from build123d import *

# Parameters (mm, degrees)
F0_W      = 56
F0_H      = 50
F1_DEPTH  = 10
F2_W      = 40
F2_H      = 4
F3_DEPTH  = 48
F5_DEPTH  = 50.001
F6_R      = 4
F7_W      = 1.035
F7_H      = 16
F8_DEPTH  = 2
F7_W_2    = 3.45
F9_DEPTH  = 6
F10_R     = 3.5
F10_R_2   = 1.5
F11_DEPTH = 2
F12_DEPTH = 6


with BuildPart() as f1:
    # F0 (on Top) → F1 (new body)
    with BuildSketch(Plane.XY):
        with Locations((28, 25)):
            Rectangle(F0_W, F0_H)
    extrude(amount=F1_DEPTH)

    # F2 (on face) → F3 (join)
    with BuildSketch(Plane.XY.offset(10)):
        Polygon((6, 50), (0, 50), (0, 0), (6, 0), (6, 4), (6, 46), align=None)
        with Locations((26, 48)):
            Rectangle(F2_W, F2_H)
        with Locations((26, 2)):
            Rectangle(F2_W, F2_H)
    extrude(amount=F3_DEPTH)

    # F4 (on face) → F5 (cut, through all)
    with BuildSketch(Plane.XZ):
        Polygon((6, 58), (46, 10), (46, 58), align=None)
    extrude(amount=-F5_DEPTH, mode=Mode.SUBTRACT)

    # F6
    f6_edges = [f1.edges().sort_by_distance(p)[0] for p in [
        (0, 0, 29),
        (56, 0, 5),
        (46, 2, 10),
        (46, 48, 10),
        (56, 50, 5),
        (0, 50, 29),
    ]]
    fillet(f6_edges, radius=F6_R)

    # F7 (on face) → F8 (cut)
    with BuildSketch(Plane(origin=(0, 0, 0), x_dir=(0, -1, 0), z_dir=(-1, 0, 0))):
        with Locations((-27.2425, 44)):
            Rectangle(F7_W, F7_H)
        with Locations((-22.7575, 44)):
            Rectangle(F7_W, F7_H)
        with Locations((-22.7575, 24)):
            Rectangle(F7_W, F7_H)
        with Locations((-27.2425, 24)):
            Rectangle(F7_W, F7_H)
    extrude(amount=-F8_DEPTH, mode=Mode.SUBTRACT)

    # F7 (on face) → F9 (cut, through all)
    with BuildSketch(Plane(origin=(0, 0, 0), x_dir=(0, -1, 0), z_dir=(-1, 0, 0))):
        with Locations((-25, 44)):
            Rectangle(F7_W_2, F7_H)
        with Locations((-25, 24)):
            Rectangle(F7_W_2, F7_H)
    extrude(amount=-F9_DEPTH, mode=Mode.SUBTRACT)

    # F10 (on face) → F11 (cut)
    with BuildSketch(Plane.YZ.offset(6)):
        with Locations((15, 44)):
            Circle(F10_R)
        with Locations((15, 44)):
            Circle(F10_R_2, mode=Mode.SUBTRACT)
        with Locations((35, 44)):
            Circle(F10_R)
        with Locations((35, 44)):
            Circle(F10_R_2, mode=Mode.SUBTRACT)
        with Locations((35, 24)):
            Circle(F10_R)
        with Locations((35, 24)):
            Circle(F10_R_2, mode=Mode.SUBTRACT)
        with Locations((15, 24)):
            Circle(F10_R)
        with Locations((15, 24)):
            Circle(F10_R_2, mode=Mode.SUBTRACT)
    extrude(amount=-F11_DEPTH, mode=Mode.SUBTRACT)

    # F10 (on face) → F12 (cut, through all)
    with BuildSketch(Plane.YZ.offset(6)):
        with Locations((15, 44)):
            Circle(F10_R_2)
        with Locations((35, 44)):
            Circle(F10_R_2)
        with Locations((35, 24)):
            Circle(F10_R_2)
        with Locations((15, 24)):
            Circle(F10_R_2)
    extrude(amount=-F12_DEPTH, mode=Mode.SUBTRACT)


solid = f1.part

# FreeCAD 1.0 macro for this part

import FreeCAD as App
import Part
import Sketcher
Q = App.Units.Quantity


def edges_at(feature, points):
    """Names of the edges that pass closest to the given points."""
    edges = feature.Shape.Edges
    near = lambda p: min(range(len(edges)), key=lambda i: edges[i].distToShape(Part.Vertex(*p))[0])
    return sorted({f"Edge{near(p) + 1}" for p in points})

doc = App.newDocument("Part")
body = doc.addObject("PartDesign::Body", "Body")

# Sketch on XY plane
sketch1 = body.newObject("Sketcher::SketchObject", "Sketch")
sketch1.AttachmentSupport = (doc.getObject("XY_Plane"), [""])
sketch1.MapMode = "FlatFace"
sketch1.addGeometry([
    Part.LineSegment(App.Vector(0, 50, 0), App.Vector(0, 0, 0)),
    Part.LineSegment(App.Vector(0, 0, 0), App.Vector(56, 0, 0)),
    Part.LineSegment(App.Vector(56, 0, 0), App.Vector(56, 50, 0)),
    Part.LineSegment(App.Vector(56, 50, 0), App.Vector(0, 50, 0)),
], False)
sketch1.addConstraint([
    Sketcher.Constraint("Coincident", 0, 2, 1, 1),
    Sketcher.Constraint("Coincident", 1, 2, 2, 1),
    Sketcher.Constraint("Coincident", 2, 2, 3, 1),
    Sketcher.Constraint("Coincident", 3, 2, 0, 1),
    Sketcher.Constraint("Vertical", 0),
    Sketcher.Constraint("Horizontal", 1),
    Sketcher.Constraint("Vertical", 2),
    Sketcher.Constraint("Horizontal", 3),
    Sketcher.Constraint("Coincident", 0, 2, -1, 1),
    Sketcher.Constraint("DistanceX", 1, 1, 1, 2, Q("56 mm")),
    Sketcher.Constraint("DistanceY", 0, 2, 0, 1, Q("50 mm")),
])
pad1 = body.newObject("PartDesign::Pad", "Pad")
pad1.Profile = sketch1
pad1.Length = 10

# Sketch on XY plane
sketch2 = body.newObject("Sketcher::SketchObject", "Sketch001")
sketch2.AttachmentSupport = (doc.getObject("XY_Plane"), [""])
sketch2.MapMode = "FlatFace"
sketch2.AttachmentOffset = App.Placement(App.Vector(0, 0, 10), App.Rotation())
sketch2.addGeometry([
    Part.LineSegment(App.Vector(0, 50, 0), App.Vector(0, 0, 0)),  # 0
    Part.LineSegment(App.Vector(0, 0, 0), App.Vector(46, 0, 0)),  # 1
    Part.LineSegment(App.Vector(46, 0, 0), App.Vector(46, 4, 0)),  # 2
    Part.LineSegment(App.Vector(46, 4, 0), App.Vector(6, 4, 0)),  # 3
    Part.LineSegment(App.Vector(6, 4, 0), App.Vector(6, 46, 0)),  # 4
    Part.LineSegment(App.Vector(6, 46, 0), App.Vector(46, 46, 0)),  # 5
    Part.LineSegment(App.Vector(46, 46, 0), App.Vector(46, 50, 0)),  # 6
    Part.LineSegment(App.Vector(46, 50, 0), App.Vector(0, 50, 0)),  # 7
], False)
sketch2.addConstraint([
    Sketcher.Constraint("Coincident", 0, 2, 1, 1),
    Sketcher.Constraint("Coincident", 1, 2, 2, 1),
    Sketcher.Constraint("Coincident", 2, 2, 3, 1),
    Sketcher.Constraint("Coincident", 3, 2, 4, 1),
    Sketcher.Constraint("Coincident", 4, 2, 5, 1),
    Sketcher.Constraint("Coincident", 5, 2, 6, 1),
    Sketcher.Constraint("Coincident", 6, 2, 7, 1),
    Sketcher.Constraint("Coincident", 7, 2, 0, 1),
    Sketcher.Constraint("Vertical", 0),
    Sketcher.Constraint("Horizontal", 1),
    Sketcher.Constraint("Vertical", 2),
    Sketcher.Constraint("Horizontal", 3),
    Sketcher.Constraint("Vertical", 4),
    Sketcher.Constraint("Horizontal", 5),
    Sketcher.Constraint("Vertical", 6),
    Sketcher.Constraint("Horizontal", 7),
    Sketcher.Constraint("Coincident", 0, 2, -1, 1),
    Sketcher.Constraint("Vertical", 2, 2, 5, 2),
    Sketcher.Constraint("Equal", 2, 6),
    Sketcher.Constraint("DistanceX", 1, 1, 1, 2, Q("46 mm")),
    Sketcher.Constraint("DistanceX", 3, 2, 3, 1, Q("40 mm")),
    Sketcher.Constraint("DistanceY", 0, 2, 0, 1, Q("50 mm")),
    Sketcher.Constraint("DistanceY", 2, 1, 2, 2, Q("4 mm")),
])
pad2 = body.newObject("PartDesign::Pad", "Pad001")
pad2.Profile = sketch2
pad2.Length = 48

# Sketch on XZ plane
sketch3 = body.newObject("Sketcher::SketchObject", "Sketch002")
sketch3.AttachmentSupport = (doc.getObject("XZ_Plane"), [""])
sketch3.MapMode = "FlatFace"
sketch3.addGeometry([
    Part.LineSegment(App.Vector(6, 58, 0), App.Vector(46, 10, 0)),
    Part.LineSegment(App.Vector(46, 10, 0), App.Vector(46, 58, 0)),
    Part.LineSegment(App.Vector(46, 58, 0), App.Vector(6, 58, 0)),
], False)
sketch3.addConstraint([
    Sketcher.Constraint("Coincident", 0, 2, 1, 1),
    Sketcher.Constraint("Coincident", 1, 2, 2, 1),
    Sketcher.Constraint("Coincident", 2, 2, 0, 1),
    Sketcher.Constraint("Vertical", 1),
    Sketcher.Constraint("Horizontal", 2),
    Sketcher.Constraint("DistanceX", 2, 2, 2, 1, Q("40 mm")),
    Sketcher.Constraint("DistanceY", 1, 1, 1, 2, Q("48 mm")),
    Sketcher.Constraint("DistanceX", -1, 1, 0, 2, Q("46 mm")),
    Sketcher.Constraint("DistanceY", -1, 1, 0, 2, Q("10 mm")),
])
pocket1 = body.newObject("PartDesign::Pocket", "Pocket")
pocket1.Profile = sketch3
pocket1.Type = "ThroughAll"
doc.recompute()

fillet = body.newObject("PartDesign::Fillet", "Fillet")
fillet.Base = (pocket1, edges_at(pocket1, [
    (0, 0, 29),
    (56, 0, 5),
    (46, 2, 10),
    (46, 48, 10),
    (56, 50, 5),
    (0, 50, 29),
]))
fillet.Radius = 4

# Sketch on YZ plane
sketch4 = body.newObject("Sketcher::SketchObject", "Sketch003")
sketch4.AttachmentSupport = (doc.getObject("YZ_Plane"), [""])
sketch4.MapMode = "FlatFace"
sketch4.addGeometry([
    Part.LineSegment(App.Vector(27.8, 52, 0), App.Vector(27.8, 36, 0)),  # 0
    Part.LineSegment(App.Vector(27.8, 36, 0), App.Vector(26.7, 36, 0)),  # 1
    Part.LineSegment(App.Vector(26.7, 36, 0), App.Vector(26.7, 52, 0)),  # 2
    Part.LineSegment(App.Vector(26.7, 52, 0), App.Vector(27.8, 52, 0)),  # 3
    Part.LineSegment(App.Vector(23.3, 52, 0), App.Vector(23.3, 36, 0)),  # 4
    Part.LineSegment(App.Vector(23.3, 36, 0), App.Vector(22.2, 36, 0)),  # 5
    Part.LineSegment(App.Vector(22.2, 36, 0), App.Vector(22.2, 52, 0)),  # 6
    Part.LineSegment(App.Vector(22.2, 52, 0), App.Vector(23.3, 52, 0)),  # 7
    Part.LineSegment(App.Vector(23.3, 32, 0), App.Vector(23.3, 16, 0)),  # 8
    Part.LineSegment(App.Vector(23.3, 16, 0), App.Vector(22.2, 16, 0)),  # 9
    Part.LineSegment(App.Vector(22.2, 16, 0), App.Vector(22.2, 32, 0)),  # 10
    Part.LineSegment(App.Vector(22.2, 32, 0), App.Vector(23.3, 32, 0)),  # 11
    Part.LineSegment(App.Vector(27.8, 32, 0), App.Vector(27.8, 16, 0)),  # 12
    Part.LineSegment(App.Vector(27.8, 16, 0), App.Vector(26.7, 16, 0)),  # 13
    Part.LineSegment(App.Vector(26.7, 16, 0), App.Vector(26.7, 32, 0)),  # 14
    Part.LineSegment(App.Vector(26.7, 32, 0), App.Vector(27.8, 32, 0)),  # 15
], False)
sketch4.addConstraint([
    Sketcher.Constraint("Coincident", 0, 2, 1, 1),
    Sketcher.Constraint("Coincident", 1, 2, 2, 1),
    Sketcher.Constraint("Coincident", 2, 2, 3, 1),
    Sketcher.Constraint("Coincident", 3, 2, 0, 1),
    Sketcher.Constraint("Coincident", 4, 2, 5, 1),
    Sketcher.Constraint("Coincident", 5, 2, 6, 1),
    Sketcher.Constraint("Coincident", 6, 2, 7, 1),
    Sketcher.Constraint("Coincident", 7, 2, 4, 1),
    Sketcher.Constraint("Coincident", 8, 2, 9, 1),
    Sketcher.Constraint("Coincident", 9, 2, 10, 1),
    Sketcher.Constraint("Coincident", 10, 2, 11, 1),
    Sketcher.Constraint("Coincident", 11, 2, 8, 1),
    Sketcher.Constraint("Coincident", 12, 2, 13, 1),
    Sketcher.Constraint("Coincident", 13, 2, 14, 1),
    Sketcher.Constraint("Coincident", 14, 2, 15, 1),
    Sketcher.Constraint("Coincident", 15, 2, 12, 1),
    Sketcher.Constraint("Vertical", 0),
    Sketcher.Constraint("Horizontal", 1),
    Sketcher.Constraint("Vertical", 2),
    Sketcher.Constraint("Horizontal", 3),
    Sketcher.Constraint("Vertical", 4),
    Sketcher.Constraint("Horizontal", 5),
    Sketcher.Constraint("Vertical", 6),
    Sketcher.Constraint("Horizontal", 7),
    Sketcher.Constraint("Vertical", 8),
    Sketcher.Constraint("Horizontal", 9),
    Sketcher.Constraint("Vertical", 10),
    Sketcher.Constraint("Horizontal", 11),
    Sketcher.Constraint("Vertical", 12),
    Sketcher.Constraint("Horizontal", 13),
    Sketcher.Constraint("Vertical", 14),
    Sketcher.Constraint("Horizontal", 15),
    Sketcher.Constraint("Horizontal", 1, 2, 4, 2),
    Sketcher.Constraint("Horizontal", 3, 2, 6, 2),
    Sketcher.Constraint("Horizontal", 9, 2, 12, 2),
    Sketcher.Constraint("Horizontal", 11, 2, 14, 2),
    Sketcher.Constraint("Vertical", 7, 2, 8, 2),
    Sketcher.Constraint("Vertical", 6, 2, 9, 2),
    Sketcher.Constraint("Vertical", 3, 2, 12, 2),
    Sketcher.Constraint("Vertical", 2, 2, 13, 2),
    Sketcher.Constraint("Equal", 3, 5),
    Sketcher.Constraint("Equal", 6, 8),
    Sketcher.Constraint("DistanceY", 0, 2, 0, 1, Q("16 mm")),
    Sketcher.Constraint("DistanceY", -1, 1, 0, 2, Q("36 mm")),
    Sketcher.Constraint("DistanceY", -1, 1, 8, 2, Q("16 mm")),
    Sketcher.Constraint("DistanceX", 1, 2, 1, 1, Q("1.035 mm")),
    Sketcher.Constraint("DistanceX", -1, 1, 0, 2, Q("27.76 mm")),
    Sketcher.Constraint("DistanceX", -1, 1, 5, 2, Q("22.24 mm")),
])
pocket2 = body.newObject("PartDesign::Pocket", "Pocket001")
pocket2.Profile = sketch4
pocket2.Length = 2
pocket2.Reversed = True

# Sketch on YZ plane
sketch5 = body.newObject("Sketcher::SketchObject", "Sketch004")
sketch5.AttachmentSupport = (doc.getObject("YZ_Plane"), [""])
sketch5.MapMode = "FlatFace"
sketch5.addGeometry([
    Part.LineSegment(App.Vector(26.7, 52, 0), App.Vector(26.7, 36, 0)),  # 0
    Part.LineSegment(App.Vector(26.7, 36, 0), App.Vector(23.3, 36, 0)),  # 1
    Part.LineSegment(App.Vector(23.3, 36, 0), App.Vector(23.3, 52, 0)),  # 2
    Part.LineSegment(App.Vector(23.3, 52, 0), App.Vector(26.7, 52, 0)),  # 3
    Part.LineSegment(App.Vector(26.7, 32, 0), App.Vector(26.7, 16, 0)),  # 4
    Part.LineSegment(App.Vector(26.7, 16, 0), App.Vector(23.3, 16, 0)),  # 5
    Part.LineSegment(App.Vector(23.3, 16, 0), App.Vector(23.3, 32, 0)),  # 6
    Part.LineSegment(App.Vector(23.3, 32, 0), App.Vector(26.7, 32, 0)),  # 7
], False)
sketch5.addConstraint([
    Sketcher.Constraint("Coincident", 0, 2, 1, 1),
    Sketcher.Constraint("Coincident", 1, 2, 2, 1),
    Sketcher.Constraint("Coincident", 2, 2, 3, 1),
    Sketcher.Constraint("Coincident", 3, 2, 0, 1),
    Sketcher.Constraint("Coincident", 4, 2, 5, 1),
    Sketcher.Constraint("Coincident", 5, 2, 6, 1),
    Sketcher.Constraint("Coincident", 6, 2, 7, 1),
    Sketcher.Constraint("Coincident", 7, 2, 4, 1),
    Sketcher.Constraint("Vertical", 0),
    Sketcher.Constraint("Horizontal", 1),
    Sketcher.Constraint("Vertical", 2),
    Sketcher.Constraint("Horizontal", 3),
    Sketcher.Constraint("Vertical", 4),
    Sketcher.Constraint("Horizontal", 5),
    Sketcher.Constraint("Vertical", 6),
    Sketcher.Constraint("Horizontal", 7),
    Sketcher.Constraint("Vertical", 3, 2, 4, 2),
    Sketcher.Constraint("Vertical", 2, 2, 5, 2),
    Sketcher.Constraint("Equal", 2, 4),
    Sketcher.Constraint("DistanceY", 0, 2, 0, 1, Q("16 mm")),
    Sketcher.Constraint("DistanceY", -1, 1, 0, 2, Q("36 mm")),
    Sketcher.Constraint("DistanceY", -1, 1, 4, 2, Q("16 mm")),
    Sketcher.Constraint("DistanceX", 1, 2, 1, 1, Q("3.45 mm")),
    Sketcher.Constraint("DistanceX", -1, 1, 0, 2, Q("26.725 mm")),
])
pocket3 = body.newObject("PartDesign::Pocket", "Pocket002")
pocket3.Profile = sketch5
pocket3.Type = "ThroughAll"
pocket3.Reversed = True

# Sketch on YZ plane
sketch6 = body.newObject("Sketcher::SketchObject", "Sketch005")
sketch6.AttachmentSupport = (doc.getObject("YZ_Plane"), [""])
sketch6.MapMode = "FlatFace"
sketch6.AttachmentOffset = App.Placement(App.Vector(0, 0, 6), App.Rotation())
sketch6.addGeometry([
    Part.Circle(App.Vector(15, 44, 0), App.Vector(0, 0, 1), 3.5),  # 0
    Part.Circle(App.Vector(15, 44, 0), App.Vector(0, 0, 1), 1.5),  # 1
    Part.Circle(App.Vector(35, 44, 0), App.Vector(0, 0, 1), 3.5),  # 2
    Part.Circle(App.Vector(35, 44, 0), App.Vector(0, 0, 1), 1.5),  # 3
    Part.Circle(App.Vector(35, 24, 0), App.Vector(0, 0, 1), 3.5),  # 4
    Part.Circle(App.Vector(35, 24, 0), App.Vector(0, 0, 1), 1.5),  # 5
    Part.Circle(App.Vector(15, 24, 0), App.Vector(0, 0, 1), 3.5),  # 6
    Part.Circle(App.Vector(15, 24, 0), App.Vector(0, 0, 1), 1.5),  # 7
], False)
sketch6.addConstraint([
    Sketcher.Constraint("Coincident", 1, 3, 0, 3),
    Sketcher.Constraint("Coincident", 3, 3, 2, 3),
    Sketcher.Constraint("Coincident", 5, 3, 4, 3),
    Sketcher.Constraint("Coincident", 7, 3, 6, 3),
    Sketcher.Constraint("Equal", 0, 2),
    Sketcher.Constraint("Equal", 1, 3),
    Sketcher.Constraint("Equal", 2, 4),
    Sketcher.Constraint("Equal", 3, 5),
    Sketcher.Constraint("Equal", 4, 6),
    Sketcher.Constraint("Equal", 5, 7),
    Sketcher.Constraint("Horizontal", 1, 3, 2, 3),
    Sketcher.Constraint("Horizontal", 5, 3, 6, 3),
    Sketcher.Constraint("Vertical", 3, 3, 4, 3),
    Sketcher.Constraint("Vertical", 1, 3, 6, 3),
    Sketcher.Constraint("Diameter", 0, Q("7 mm")),
    Sketcher.Constraint("Diameter", 1, Q("3 mm")),
    Sketcher.Constraint("DistanceX", -1, 1, 0, 3, Q("15 mm")),
    Sketcher.Constraint("DistanceY", -1, 1, 0, 3, Q("44 mm")),
    Sketcher.Constraint("DistanceX", -1, 1, 2, 3, Q("35 mm")),
    Sketcher.Constraint("DistanceY", -1, 1, 4, 3, Q("24 mm")),
])
pocket4 = body.newObject("PartDesign::Pocket", "Pocket003")
pocket4.Profile = sketch6
pocket4.Length = 2

# Sketch on YZ plane
sketch7 = body.newObject("Sketcher::SketchObject", "Sketch006")
sketch7.AttachmentSupport = (doc.getObject("YZ_Plane"), [""])
sketch7.MapMode = "FlatFace"
sketch7.AttachmentOffset = App.Placement(App.Vector(0, 0, 6), App.Rotation())
sketch7.addGeometry([
    Part.Circle(App.Vector(15, 44, 0), App.Vector(0, 0, 1), 1.5),
    Part.Circle(App.Vector(35, 44, 0), App.Vector(0, 0, 1), 1.5),
    Part.Circle(App.Vector(35, 24, 0), App.Vector(0, 0, 1), 1.5),
    Part.Circle(App.Vector(15, 24, 0), App.Vector(0, 0, 1), 1.5),
], False)
sketch7.addConstraint([
    Sketcher.Constraint("Equal", 0, 1),
    Sketcher.Constraint("Equal", 1, 2),
    Sketcher.Constraint("Equal", 2, 3),
    Sketcher.Constraint("Horizontal", 0, 3, 1, 3),
    Sketcher.Constraint("Horizontal", 2, 3, 3, 3),
    Sketcher.Constraint("Vertical", 1, 3, 2, 3),
    Sketcher.Constraint("Vertical", 0, 3, 3, 3),
    Sketcher.Constraint("Diameter", 0, Q("3 mm")),
    Sketcher.Constraint("DistanceX", -1, 1, 0, 3, Q("15 mm")),
    Sketcher.Constraint("DistanceY", -1, 1, 0, 3, Q("44 mm")),
    Sketcher.Constraint("DistanceX", -1, 1, 1, 3, Q("35 mm")),
    Sketcher.Constraint("DistanceY", -1, 1, 2, 3, Q("24 mm")),
])
pocket5 = body.newObject("PartDesign::Pocket", "Pocket004")
pocket5.Profile = sketch7
pocket5.Type = "ThroughAll"

doc.recompute()
